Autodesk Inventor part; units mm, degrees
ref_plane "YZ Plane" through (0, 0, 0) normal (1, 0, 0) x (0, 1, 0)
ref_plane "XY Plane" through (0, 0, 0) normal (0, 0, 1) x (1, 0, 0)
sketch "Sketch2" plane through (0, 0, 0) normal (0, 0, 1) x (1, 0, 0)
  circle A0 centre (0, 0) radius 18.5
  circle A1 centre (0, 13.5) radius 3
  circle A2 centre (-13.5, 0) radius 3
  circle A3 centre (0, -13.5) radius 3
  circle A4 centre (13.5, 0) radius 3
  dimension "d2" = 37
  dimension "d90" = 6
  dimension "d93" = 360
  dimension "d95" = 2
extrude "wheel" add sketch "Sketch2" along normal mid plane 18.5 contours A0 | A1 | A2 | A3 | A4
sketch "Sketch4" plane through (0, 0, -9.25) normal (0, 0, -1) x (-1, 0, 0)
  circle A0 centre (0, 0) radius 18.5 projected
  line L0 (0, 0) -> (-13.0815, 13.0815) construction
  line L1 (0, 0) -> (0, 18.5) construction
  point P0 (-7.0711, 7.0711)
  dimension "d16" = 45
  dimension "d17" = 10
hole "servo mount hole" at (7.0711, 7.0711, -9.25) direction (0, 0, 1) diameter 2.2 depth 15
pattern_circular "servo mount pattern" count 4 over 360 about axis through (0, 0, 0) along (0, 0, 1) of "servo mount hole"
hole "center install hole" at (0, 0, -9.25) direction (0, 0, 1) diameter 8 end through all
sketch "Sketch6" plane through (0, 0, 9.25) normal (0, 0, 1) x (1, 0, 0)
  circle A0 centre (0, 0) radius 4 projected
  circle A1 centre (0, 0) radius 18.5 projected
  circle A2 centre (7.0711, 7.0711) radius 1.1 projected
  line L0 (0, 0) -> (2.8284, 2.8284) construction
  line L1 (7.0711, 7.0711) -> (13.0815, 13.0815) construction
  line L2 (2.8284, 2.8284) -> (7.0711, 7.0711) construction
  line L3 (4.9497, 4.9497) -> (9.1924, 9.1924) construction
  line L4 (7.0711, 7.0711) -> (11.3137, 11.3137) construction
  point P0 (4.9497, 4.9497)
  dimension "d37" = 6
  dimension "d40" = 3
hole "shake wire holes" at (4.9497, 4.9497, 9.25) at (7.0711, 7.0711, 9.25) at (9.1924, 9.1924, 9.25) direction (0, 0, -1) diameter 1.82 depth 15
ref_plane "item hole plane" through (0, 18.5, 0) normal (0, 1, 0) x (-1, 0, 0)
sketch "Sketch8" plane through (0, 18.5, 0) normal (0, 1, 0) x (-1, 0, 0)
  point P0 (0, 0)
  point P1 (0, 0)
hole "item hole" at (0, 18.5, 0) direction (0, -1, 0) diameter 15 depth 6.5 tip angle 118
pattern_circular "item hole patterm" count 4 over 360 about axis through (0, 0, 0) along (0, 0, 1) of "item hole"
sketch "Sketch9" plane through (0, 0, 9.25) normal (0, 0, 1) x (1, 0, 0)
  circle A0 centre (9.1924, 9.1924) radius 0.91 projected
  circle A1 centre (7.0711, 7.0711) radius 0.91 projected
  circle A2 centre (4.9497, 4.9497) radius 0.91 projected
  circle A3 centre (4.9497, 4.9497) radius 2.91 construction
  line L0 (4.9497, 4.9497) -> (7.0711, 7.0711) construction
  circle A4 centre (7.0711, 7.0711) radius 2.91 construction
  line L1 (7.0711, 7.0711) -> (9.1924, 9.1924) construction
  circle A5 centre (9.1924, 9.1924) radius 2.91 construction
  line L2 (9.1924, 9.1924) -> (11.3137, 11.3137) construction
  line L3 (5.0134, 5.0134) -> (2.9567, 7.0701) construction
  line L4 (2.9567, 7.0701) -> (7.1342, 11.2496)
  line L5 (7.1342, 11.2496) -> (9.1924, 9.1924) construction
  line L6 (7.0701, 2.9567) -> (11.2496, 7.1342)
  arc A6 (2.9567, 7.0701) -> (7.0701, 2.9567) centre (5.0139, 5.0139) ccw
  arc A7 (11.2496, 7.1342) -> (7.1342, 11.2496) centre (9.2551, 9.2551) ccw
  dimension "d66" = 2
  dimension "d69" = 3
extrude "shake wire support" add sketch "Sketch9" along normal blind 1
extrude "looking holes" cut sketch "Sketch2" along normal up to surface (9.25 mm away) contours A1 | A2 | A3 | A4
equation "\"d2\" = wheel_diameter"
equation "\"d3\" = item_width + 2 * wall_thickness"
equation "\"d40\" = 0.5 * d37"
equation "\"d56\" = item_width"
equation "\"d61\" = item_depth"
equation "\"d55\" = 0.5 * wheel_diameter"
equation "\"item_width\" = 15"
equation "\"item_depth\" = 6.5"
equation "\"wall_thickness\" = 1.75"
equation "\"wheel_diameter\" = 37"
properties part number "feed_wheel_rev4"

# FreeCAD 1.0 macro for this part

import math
import FreeCAD as App
import Part
import Sketcher

doc = App.newDocument("Part")
params = doc.addObject("Spreadsheet::Sheet", "Params")
for row, (alias, value) in enumerate([
    ("sketch1_diameter", "37 mm"),
    ("pad1_length", "18.5 mm"),
    ("sketch2_diameter", "2.2 mm"),
    ("hole_diameter", "2.2 mm"),
    ("hole_depth", "15 mm"),
    ("sketch3_diameter", "8 mm"),
    ("hole2_diameter", "8 mm"),
    ("sketch4_diameter", "1.82 mm"),
    ("hole3_diameter", "1.82 mm"),
    ("hole3_depth", "15 mm"),
    ("sketch5_diameter", "15 mm"),
    ("hole4_diameter", "15 mm"),
    ("hole4_depth", "6.5 mm"),
    ("sketch6_diameter", "1.82 mm"),
    ("sketch6_diameter2", "1.82 mm"),
    ("sketch6_diameter3", "1.82 mm"),
    ("pad2_length", "1 mm"),
    ("sketch7_diameter", "6 mm"),
    ("pocket1_length", "9.25 mm"),
], start=1):
    params.set(f"A{row}", alias)
    params.set(f"B{row}", "=" + value)
    params.setAlias(f"B{row}", alias)

body = doc.addObject("PartDesign::Body", "Body")

sketch1 = body.newObject("Sketcher::SketchObject", "Sketch")
sketch1.AttachmentSupport = (doc.getObject("XY_Plane"), [""])
sketch1.MapMode = "FlatFace"
sketch1.addGeometry(Part.Circle(App.Vector(0, 0, 0), App.Vector(0, 0, 1), 18), False)
sketch1.addConstraint([
    Sketcher.Constraint("Coincident", 0, 3, -1, 1),
    Sketcher.Constraint("Diameter", 0, 37.0),
])
sketch1.setExpression("Constraints[1]", "Params.sketch1_diameter")
pad1 = body.newObject("PartDesign::Pad", "Pad")
pad1.Profile = sketch1
pad1.setExpression("Length", "Params.pad1_length")
pad1.Midplane = True

sketch2 = body.newObject("Sketcher::SketchObject", "Sketch001")
sketch2.AttachmentSupport = (doc.getObject("XY_Plane"), [""])
sketch2.MapMode = "FlatFace"
sketch2.AttachmentOffset = App.Placement(App.Vector(0, 0, -9.25), App.Rotation())
sketch2.addGeometry(Part.Circle(App.Vector(7.1, 7.1, 0), App.Vector(0, 0, 1), 1.1), False)
sketch2.addConstraint([
    Sketcher.Constraint("Diameter", 0, 2.2),
    Sketcher.Constraint("DistanceX", -1, 1, 0, 3, 7.071),
    Sketcher.Constraint("DistanceY", -1, 1, 0, 3, 7.071),
])
sketch2.setExpression("Constraints[0]", "Params.sketch2_diameter")
doc.recompute()
hole = body.newObject("PartDesign::Hole", "Hole")
hole.Profile = sketch2
hole.ThreadType = "None"
hole.setExpression("Diameter", "Params.hole_diameter")
hole.DepthType = "Dimension"
hole.setExpression("Depth", "Params.hole_depth")
hole.DrillPoint = "Flat"
hole.Reversed = True
doc.recompute()

polarpattern = body.newObject("PartDesign::PolarPattern", "PolarPattern")
polarpattern.Originals = [hole]
polarpattern.Axis = (doc.getObject("Z_Axis"), [""])
polarpattern.Angle = 360
polarpattern.Occurrences = 4
body.Tip = polarpattern

sketch3 = body.newObject("Sketcher::SketchObject", "Sketch002")
sketch3.AttachmentSupport = (doc.getObject("XY_Plane"), [""])
sketch3.MapMode = "FlatFace"
sketch3.AttachmentOffset = App.Placement(App.Vector(0, 0, -9.25), App.Rotation())
sketch3.addGeometry(Part.Circle(App.Vector(0, 0, 0), App.Vector(0, 0, 1), 4), False)
sketch3.addConstraint([
    Sketcher.Constraint("Coincident", 0, 3, -1, 1),
    Sketcher.Constraint("Diameter", 0, 8.0),
])
sketch3.setExpression("Constraints[1]", "Params.sketch3_diameter")
doc.recompute()
hole2 = body.newObject("PartDesign::Hole", "Hole001")
hole2.Profile = sketch3
hole2.ThreadType = "None"
hole2.setExpression("Diameter", "Params.hole2_diameter")
hole2.DepthType = "ThroughAll"
hole2.Reversed = True

sketch4 = body.newObject("Sketcher::SketchObject", "Sketch003")
sketch4.AttachmentSupport = (doc.getObject("XY_Plane"), [""])
sketch4.MapMode = "FlatFace"
sketch4.AttachmentOffset = App.Placement(App.Vector(0, 0, 9.25), App.Rotation())
sketch4.addGeometry([
    Part.Circle(App.Vector(4.9, 4.9, 0), App.Vector(0, 0, 1), 0.9),
    Part.Circle(App.Vector(7.1, 7.1, 0), App.Vector(0, 0, 1), 0.9),
    Part.Circle(App.Vector(9.2, 9.2, 0), App.Vector(0, 0, 1), 0.9),
], False)
sketch4.addConstraint([
    Sketcher.Constraint("Equal", 0, 1),
    Sketcher.Constraint("Equal", 1, 2),
    Sketcher.Constraint("Diameter", 0, 1.82),
    Sketcher.Constraint("DistanceX", -1, 1, 1, 3, 7.071),
    Sketcher.Constraint("DistanceY", -1, 1, 1, 3, 7.071),
    Sketcher.Constraint("DistanceX", -1, 1, 0, 3, 4.9497),
    Sketcher.Constraint("DistanceY", -1, 1, 0, 3, 4.9497),
    Sketcher.Constraint("DistanceX", -1, 1, 2, 3, 9.1924),
    Sketcher.Constraint("DistanceY", -1, 1, 2, 3, 9.1924),
])
sketch4.setExpression("Constraints[2]", "Params.sketch4_diameter")
doc.recompute()
hole3 = body.newObject("PartDesign::Hole", "Hole002")
hole3.Profile = sketch4
hole3.ThreadType = "None"
hole3.setExpression("Diameter", "Params.hole3_diameter")
hole3.DepthType = "Dimension"
hole3.setExpression("Depth", "Params.hole3_depth")
hole3.DrillPoint = "Flat"

sketch5 = body.newObject("Sketcher::SketchObject", "Sketch004")
sketch5.AttachmentSupport = (doc.getObject("XZ_Plane"), [""])
sketch5.MapMode = "FlatFace"
sketch5.AttachmentOffset = App.Placement(App.Vector(0, 0, -18.5), App.Rotation())
sketch5.addGeometry(Part.Circle(App.Vector(0, 0, 0), App.Vector(0, 0, 1), 8), False)
sketch5.addConstraint([
    Sketcher.Constraint("Coincident", 0, 3, -1, 1),
    Sketcher.Constraint("Diameter", 0, 15.0),
])
sketch5.setExpression("Constraints[1]", "Params.sketch5_diameter")
doc.recompute()
hole4 = body.newObject("PartDesign::Hole", "Hole003")
hole4.Profile = sketch5
hole4.ThreadType = "None"
hole4.setExpression("Diameter", "Params.hole4_diameter")
hole4.DepthType = "Dimension"
hole4.setExpression("Depth", "Params.hole4_depth")
hole4.DrillPoint = "Angled"
hole4.DrillPointAngle = 118
hole4.Reversed = True
doc.recompute()

polarpattern2 = body.newObject("PartDesign::PolarPattern", "PolarPattern001")
polarpattern2.Originals = [hole4]
polarpattern2.Axis = (doc.getObject("Z_Axis"), [""])
polarpattern2.Angle = 360
polarpattern2.Occurrences = 4
body.Tip = polarpattern2

sketch6 = body.newObject("Sketcher::SketchObject", "Sketch005")
sketch6.AttachmentSupport = (doc.getObject("XY_Plane"), [""])
sketch6.MapMode = "FlatFace"
sketch6.AttachmentOffset = App.Placement(App.Vector(0, 0, 9.25), App.Rotation())
sketch6.addGeometry([
    Part.LineSegment(App.Vector(7.1342, 11.2496, 0), App.Vector(2.9567, 7.0701, 0)),
    Part.ArcOfCircle(Part.Circle(App.Vector(5.0139, 5.0139, 0), App.Vector(0, 0, 1), 2.908613), math.radians(135.013929), math.radians(314.986071)),
    Part.LineSegment(App.Vector(7.0701, 2.9567, 0), App.Vector(11.2496, 7.1342, 0)),
    Part.ArcOfCircle(Part.Circle(App.Vector(9.2551, 9.2551, 0), App.Vector(0, 0, 1), 2.9114), math.radians(-46.759224), math.radians(136.759224)),
    Part.Circle(App.Vector(4.9497, 4.9497, 0), App.Vector(0, 0, 1), 0.91),
    Part.Circle(App.Vector(7.0711, 7.0711, 0), App.Vector(0, 0, 1), 0.91),
    Part.Circle(App.Vector(9.1924, 9.1924, 0), App.Vector(0, 0, 1), 0.91),
], False)
sketch6.addConstraint([
    Sketcher.Constraint("Coincident", 0, 2, 1, 1),
    Sketcher.Constraint("Coincident", 1, 2, 2, 1),
    Sketcher.Constraint("Coincident", 2, 2, 3, 1),
    Sketcher.Constraint("Coincident", 3, 2, 0, 1),
    Sketcher.Constraint("Diameter", 4, 1.82),
    Sketcher.Constraint("Diameter", 5, 1.82),
    Sketcher.Constraint("Diameter", 6, 1.82),
    Sketcher.Constraint("Radius", 1, 2.9086),
    Sketcher.Constraint("Radius", 3, 2.9114),
    Sketcher.Constraint("DistanceY", -1, 1, 0, 2, 7.07),
    Sketcher.Constraint("DistanceX", -1, 1, 1, 2, 7.07),
    Sketcher.Constraint("DistanceX", -1, 1, 1, 3, 5.014),
    Sketcher.Constraint("DistanceY", -1, 1, 1, 3, 5.014),
    Sketcher.Constraint("DistanceX", -1, 1, 3, 3, 9.255),
    Sketcher.Constraint("DistanceY", -1, 1, 3, 3, 9.255),
    Sketcher.Constraint("DistanceX", -1, 1, 5, 3, 7.071),
    Sketcher.Constraint("DistanceY", -1, 1, 5, 3, 7.071),
    Sketcher.Constraint("DistanceX", 0, 2, 4, 3, 1.993),
    Sketcher.Constraint("DistanceY", 1, 2, 4, 3, 1.993),
    Sketcher.Constraint("DistanceY", 2, 2, 3, 3, 2.121),
    Sketcher.Constraint("DistanceX", 3, 2, 3, 3, 2.121),
    Sketcher.Constraint("DistanceX", -1, 1, 6, 3, 9.1924),
    Sketcher.Constraint("DistanceY", -1, 1, 6, 3, 9.1924),
])
sketch6.setExpression("Constraints[4]", "Params.sketch6_diameter")
sketch6.setExpression("Constraints[5]", "Params.sketch6_diameter2")
sketch6.setExpression("Constraints[6]", "Params.sketch6_diameter3")
pad2 = body.newObject("PartDesign::Pad", "Pad001")
pad2.Profile = sketch6
pad2.setExpression("Length", "Params.pad2_length")

sketch7 = body.newObject("Sketcher::SketchObject", "Sketch006")
sketch7.AttachmentSupport = (doc.getObject("XY_Plane"), [""])
sketch7.MapMode = "FlatFace"
sketch7.addGeometry([
    Part.Circle(App.Vector(0, 13.5, 0), App.Vector(0, 0, 1), 3),
    Part.Circle(App.Vector(-13.5, 0, 0), App.Vector(0, 0, 1), 3),
    Part.Circle(App.Vector(0, -13.5, 0), App.Vector(0, 0, 1), 3),
    Part.Circle(App.Vector(13.5, 0, 0), App.Vector(0, 0, 1), 3),
], False)
sketch7.addConstraint([
    Sketcher.Constraint("Equal", 0, 1),
    Sketcher.Constraint("Equal", 1, 2),
    Sketcher.Constraint("Equal", 2, 3),
    Sketcher.Constraint("Symmetric", 0, 3, 2, 3, -1, 1),
    Sketcher.Constraint("Symmetric", 1, 3, 3, 3, -1, 1),
    Sketcher.Constraint("PointOnObject", 0, 3, -2),
    Sketcher.Constraint("PointOnObject", 1, 3, -1),
    Sketcher.Constraint("Diameter", 0, 6.0),
    Sketcher.Constraint("DistanceY", 2, 3, 0, 3, 27.0),
    Sketcher.Constraint("DistanceX", 1, 3, 3, 3, 27.0),
])
sketch7.setExpression("Constraints[7]", "Params.sketch7_diameter")
pocket1 = body.newObject("PartDesign::Pocket", "Pocket")
pocket1.Profile = sketch7
pocket1.setExpression("Length", "Params.pocket1_length")
pocket1.Reversed = True

doc.recompute()
